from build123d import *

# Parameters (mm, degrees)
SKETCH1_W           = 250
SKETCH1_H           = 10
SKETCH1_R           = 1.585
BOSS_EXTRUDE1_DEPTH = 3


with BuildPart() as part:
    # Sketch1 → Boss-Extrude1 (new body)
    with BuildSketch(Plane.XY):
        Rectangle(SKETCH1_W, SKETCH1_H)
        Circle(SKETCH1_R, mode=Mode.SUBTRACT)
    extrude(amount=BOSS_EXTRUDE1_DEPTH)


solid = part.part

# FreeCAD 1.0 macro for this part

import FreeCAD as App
import Part
import Sketcher

V = App.Vector
Q = App.Units.Quantity


def add_polygon(sketch, points):
    """Adds a closed chain of lines whose ends are joined by coincident constraints."""
    first, n = sketch.GeometryCount, len(points)
    for a, b in zip(points, points[1:] + points[:1]):
        sketch.addGeometry(Part.LineSegment(App.Vector(*a, 0), App.Vector(*b, 0)), False)
    for i in range(n):
        sketch.addConstraint(Sketcher.Constraint("Coincident", first + i, 2, first + (i + 1) % n, 1))

doc = App.newDocument("Part")
params = doc.addObject("Spreadsheet::Sheet", "Params")
for row, (alias, value) in enumerate([
    ("sketch1_diameter", "3.17 mm"),
    ("sketch1_width", "250 mm"),
    ("sketch1_height", "10 mm"),
    ("pad1_length", "3 mm"),
], start=1):
    params.set(f"A{row}", alias)
    params.set(f"B{row}", "=" + value)
    params.setAlias(f"B{row}", alias)

body = doc.addObject("PartDesign::Body", "Body")

sketch1 = doc.addObject("Sketcher::SketchObject", "Sketch")
body.addObject(sketch1)
sketch1.AttachmentSupport = (doc.XY_Plane, [""])
sketch1.MapMode = "FlatFace"
add_polygon(sketch1, [(-125, 5), (-125, -5), (125, -5), (125, 5)])
sketch1.addGeometry(Part.Circle(V(0, 0, 0), V(0, 0, 1), 1.6), False)
sketch1.addConstraint([
    Sketcher.Constraint("Vertical", 0),
    Sketcher.Constraint("Horizontal", 1),
    Sketcher.Constraint("Vertical", 2),
    Sketcher.Constraint("Horizontal", 3),
    Sketcher.Constraint("Coincident", 4, 3, -1, 1),
    Sketcher.Constraint("Symmetric", 0, 2, 2, 2, -1, 1),
    Sketcher.Constraint("Diameter", 4, Q("3.17 mm")),
    Sketcher.Constraint("DistanceX", 1, 1, 1, 2, Q("250 mm")),
    Sketcher.Constraint("DistanceY", 0, 2, 0, 1, Q("10 mm")),
])
sketch1.setExpression("Constraints[10]", "Params.sketch1_diameter")
sketch1.setExpression("Constraints[11]", "Params.sketch1_width")
sketch1.setExpression("Constraints[12]", "Params.sketch1_height")
pad1 = doc.addObject("PartDesign::Pad", "Pad")
body.addObject(pad1)
pad1.Profile = sketch1
pad1.setExpression("Length", "Params.pad1_length")

doc.recompute()
